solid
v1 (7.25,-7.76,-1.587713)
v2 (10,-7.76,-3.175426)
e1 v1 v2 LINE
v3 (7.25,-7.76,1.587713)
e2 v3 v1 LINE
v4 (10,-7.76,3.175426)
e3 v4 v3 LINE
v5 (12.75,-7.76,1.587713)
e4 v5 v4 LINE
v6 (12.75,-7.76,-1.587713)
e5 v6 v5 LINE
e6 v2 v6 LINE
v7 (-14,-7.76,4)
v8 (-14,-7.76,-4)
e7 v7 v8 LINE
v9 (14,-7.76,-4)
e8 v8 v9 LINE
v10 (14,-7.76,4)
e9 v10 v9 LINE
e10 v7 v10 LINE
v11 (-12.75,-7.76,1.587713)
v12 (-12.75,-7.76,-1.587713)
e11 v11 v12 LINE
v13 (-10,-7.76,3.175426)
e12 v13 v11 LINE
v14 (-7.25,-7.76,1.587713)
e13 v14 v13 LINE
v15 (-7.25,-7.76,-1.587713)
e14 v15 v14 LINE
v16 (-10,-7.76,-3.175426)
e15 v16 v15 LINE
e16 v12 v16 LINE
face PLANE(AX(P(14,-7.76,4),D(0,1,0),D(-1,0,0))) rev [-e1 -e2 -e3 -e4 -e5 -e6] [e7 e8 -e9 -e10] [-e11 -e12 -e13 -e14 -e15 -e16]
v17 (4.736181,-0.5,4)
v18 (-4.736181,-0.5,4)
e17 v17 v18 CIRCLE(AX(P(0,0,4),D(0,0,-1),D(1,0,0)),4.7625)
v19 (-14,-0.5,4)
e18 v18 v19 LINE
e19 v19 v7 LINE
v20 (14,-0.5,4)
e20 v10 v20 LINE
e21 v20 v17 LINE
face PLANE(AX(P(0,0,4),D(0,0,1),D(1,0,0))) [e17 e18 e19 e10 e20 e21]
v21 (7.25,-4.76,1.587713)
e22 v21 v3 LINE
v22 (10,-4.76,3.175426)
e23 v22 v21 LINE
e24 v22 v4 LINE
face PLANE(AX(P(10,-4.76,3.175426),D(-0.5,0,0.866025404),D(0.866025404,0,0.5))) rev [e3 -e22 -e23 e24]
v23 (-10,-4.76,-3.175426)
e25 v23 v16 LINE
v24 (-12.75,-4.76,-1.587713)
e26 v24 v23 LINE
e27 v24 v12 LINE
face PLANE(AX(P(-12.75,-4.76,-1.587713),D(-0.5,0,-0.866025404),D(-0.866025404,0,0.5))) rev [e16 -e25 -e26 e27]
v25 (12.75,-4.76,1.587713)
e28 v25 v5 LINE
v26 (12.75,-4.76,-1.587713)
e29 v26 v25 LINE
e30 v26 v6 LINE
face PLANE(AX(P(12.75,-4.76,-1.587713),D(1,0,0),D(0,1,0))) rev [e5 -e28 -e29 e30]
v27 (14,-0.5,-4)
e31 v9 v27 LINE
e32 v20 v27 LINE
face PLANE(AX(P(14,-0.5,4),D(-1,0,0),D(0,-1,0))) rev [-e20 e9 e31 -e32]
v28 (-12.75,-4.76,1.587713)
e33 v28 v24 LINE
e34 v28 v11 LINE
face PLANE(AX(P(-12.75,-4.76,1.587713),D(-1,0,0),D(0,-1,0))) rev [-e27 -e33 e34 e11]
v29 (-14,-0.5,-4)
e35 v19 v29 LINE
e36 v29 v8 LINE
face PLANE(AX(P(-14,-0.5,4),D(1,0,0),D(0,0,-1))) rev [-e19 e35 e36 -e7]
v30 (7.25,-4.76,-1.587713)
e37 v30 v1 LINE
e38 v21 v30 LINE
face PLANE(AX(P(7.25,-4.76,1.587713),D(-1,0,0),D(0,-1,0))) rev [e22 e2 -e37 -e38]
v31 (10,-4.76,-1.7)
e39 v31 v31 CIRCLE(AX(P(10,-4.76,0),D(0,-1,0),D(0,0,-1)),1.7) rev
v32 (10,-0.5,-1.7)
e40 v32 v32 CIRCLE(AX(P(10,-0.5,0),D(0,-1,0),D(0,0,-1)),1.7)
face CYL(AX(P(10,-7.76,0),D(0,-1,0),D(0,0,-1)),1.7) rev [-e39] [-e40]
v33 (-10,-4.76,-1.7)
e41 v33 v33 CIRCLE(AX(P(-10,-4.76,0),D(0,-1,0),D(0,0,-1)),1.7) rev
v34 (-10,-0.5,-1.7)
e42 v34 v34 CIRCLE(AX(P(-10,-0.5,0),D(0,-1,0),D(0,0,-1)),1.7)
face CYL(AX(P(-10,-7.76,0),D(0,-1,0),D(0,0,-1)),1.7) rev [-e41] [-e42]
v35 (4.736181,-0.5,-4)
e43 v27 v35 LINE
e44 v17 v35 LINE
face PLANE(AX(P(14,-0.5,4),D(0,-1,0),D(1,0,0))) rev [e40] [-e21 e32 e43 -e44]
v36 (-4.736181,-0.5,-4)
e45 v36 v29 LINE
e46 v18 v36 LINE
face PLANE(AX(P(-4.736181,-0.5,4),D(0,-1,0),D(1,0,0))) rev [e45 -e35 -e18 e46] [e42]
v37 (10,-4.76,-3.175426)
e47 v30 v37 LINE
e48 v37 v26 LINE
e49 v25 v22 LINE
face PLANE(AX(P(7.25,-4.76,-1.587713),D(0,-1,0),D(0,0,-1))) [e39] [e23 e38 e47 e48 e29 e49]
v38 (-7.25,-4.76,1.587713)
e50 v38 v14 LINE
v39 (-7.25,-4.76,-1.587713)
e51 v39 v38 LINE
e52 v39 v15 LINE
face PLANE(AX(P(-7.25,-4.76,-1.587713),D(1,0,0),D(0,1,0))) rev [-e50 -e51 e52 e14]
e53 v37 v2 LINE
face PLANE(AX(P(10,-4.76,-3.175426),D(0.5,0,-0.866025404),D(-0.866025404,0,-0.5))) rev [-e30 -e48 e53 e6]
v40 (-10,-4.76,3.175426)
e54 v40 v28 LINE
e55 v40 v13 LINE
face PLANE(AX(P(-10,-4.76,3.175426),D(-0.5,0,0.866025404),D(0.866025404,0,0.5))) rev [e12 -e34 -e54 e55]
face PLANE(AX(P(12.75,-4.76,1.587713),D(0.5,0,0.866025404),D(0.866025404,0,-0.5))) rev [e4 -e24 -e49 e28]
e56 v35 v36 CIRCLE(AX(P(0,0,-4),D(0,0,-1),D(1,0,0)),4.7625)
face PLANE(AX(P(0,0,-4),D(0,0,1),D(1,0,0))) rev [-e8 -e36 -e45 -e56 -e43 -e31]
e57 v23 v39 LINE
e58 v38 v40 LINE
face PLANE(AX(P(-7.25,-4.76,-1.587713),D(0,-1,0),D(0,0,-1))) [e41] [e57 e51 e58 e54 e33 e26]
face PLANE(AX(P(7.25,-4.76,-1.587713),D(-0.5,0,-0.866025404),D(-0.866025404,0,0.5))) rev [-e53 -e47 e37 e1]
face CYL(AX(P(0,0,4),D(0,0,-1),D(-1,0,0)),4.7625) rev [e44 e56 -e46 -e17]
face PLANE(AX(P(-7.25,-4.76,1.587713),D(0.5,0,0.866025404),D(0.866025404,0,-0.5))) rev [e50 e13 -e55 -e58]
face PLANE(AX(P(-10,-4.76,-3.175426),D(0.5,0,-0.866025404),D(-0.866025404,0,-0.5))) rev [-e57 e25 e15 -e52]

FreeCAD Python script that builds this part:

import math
import FreeCAD as App
import Part
import Sketcher

V = App.Vector
Q = App.Units.Quantity


def add_polygon(sketch, points):
    """Adds a closed chain of lines whose ends are joined by coincident constraints."""
    first, n = sketch.GeometryCount, len(points)
    for a, b in zip(points, points[1:] + points[:1]):
        sketch.addGeometry(Part.LineSegment(App.Vector(*a, 0), App.Vector(*b, 0)), False)
    for i in range(n):
        sketch.addConstraint(Sketcher.Constraint("Coincident", first + i, 2, first + (i + 1) % n, 1))

doc = App.newDocument("Part")
body = doc.addObject("PartDesign::Body", "Body")

# Sketch on XY plane
sketch1 = doc.addObject("Sketcher::SketchObject", "Sketch")
body.addObject(sketch1)
sketch1.AttachmentSupport = (doc.XY_Plane, [""])
sketch1.MapMode = "FlatFace"
sketch1.addGeometry(Part.LineSegment(V(14, -0.5, 0), V(4.7, -0.5, 0)), False)
sketch1.addGeometry(Part.ArcOfCircle(Part.Circle(V(0, 0, 0), V(0, 0, 1), 4.8), math.radians(-174), math.radians(-6)), False)
sketch1.addGeometry(Part.LineSegment(V(-4.7, -0.5, 0), V(-14, -0.5, 0)), False)
sketch1.addGeometry(Part.LineSegment(V(-14, -0.5, 0), V(-14, -7.8, 0)), False)
sketch1.addGeometry(Part.LineSegment(V(-14, -7.8, 0), V(14, -7.8, 0)), False)
sketch1.addGeometry(Part.LineSegment(V(14, -7.8, 0), V(14, -0.5, 0)), False)
sketch1.addConstraint(Sketcher.Constraint("Coincident", 0, 2, 1, 2))
sketch1.addConstraint(Sketcher.Constraint("Coincident", 1, 1, 2, 1))
sketch1.addConstraint(Sketcher.Constraint("Coincident", 2, 2, 3, 1))
sketch1.addConstraint(Sketcher.Constraint("Coincident", 3, 2, 4, 1))
sketch1.addConstraint(Sketcher.Constraint("Coincident", 4, 2, 5, 1))
sketch1.addConstraint(Sketcher.Constraint("Coincident", 5, 2, 0, 1))
sketch1.addConstraint(Sketcher.Constraint("Horizontal", 0))
sketch1.addConstraint(Sketcher.Constraint("Horizontal", 2))
sketch1.addConstraint(Sketcher.Constraint("Vertical", 3))
sketch1.addConstraint(Sketcher.Constraint("Horizontal", 4))
sketch1.addConstraint(Sketcher.Constraint("Vertical", 5))
sketch1.addConstraint(Sketcher.Constraint("Coincident", 1, 3, -1, 1))
sketch1.addConstraint(Sketcher.Constraint("Symmetric", 2, 2, 5, 2, -2))
sketch1.addConstraint(Sketcher.Constraint("DistanceX", 4, 1, 4, 2, Q("28 mm")))
sketch1.addConstraint(Sketcher.Constraint("DistanceY", 3, 2, 3, 1, Q("7.26 mm")))
sketch1.addConstraint(Sketcher.Constraint("DistanceY", 0, 2, -1, 1, Q("0.5 mm")))
sketch1.addConstraint(Sketcher.Constraint("Radius", 1, Q("4.7625 mm")))
pad1 = doc.addObject("PartDesign::Pad", "Pad")
body.addObject(pad1)
pad1.Profile = sketch1
pad1.Length = 8
pad1.Midplane = True

# Sketch on XZ plane
sketch2 = doc.addObject("Sketcher::SketchObject", "Sketch001")
body.addObject(sketch2)
sketch2.AttachmentSupport = (doc.XZ_Plane, [""])
sketch2.MapMode = "FlatFace"
sketch2.AttachmentOffset = App.Placement(V(0, 0, 7.76), App.Rotation())
sketch2.addGeometry(Part.Circle(V(-10, 0, 0), V(0, 0, 1), 1.7), False)
sketch2.addGeometry(Part.Circle(V(10, 0, 0), V(0, 0, 1), 1.7), False)
sketch2.addConstraint(Sketcher.Constraint("Equal", 0, 1))
sketch2.addConstraint(Sketcher.Constraint("Symmetric", 0, 3, 1, 3, -1, 1))
sketch2.addConstraint(Sketcher.Constraint("PointOnObject", 0, 3, -1))
sketch2.addConstraint(Sketcher.Constraint("Diameter", 0, Q("3.4 mm")))
sketch2.addConstraint(Sketcher.Constraint("DistanceX", 0, 3, -1, 1, Q("10 mm")))
doc.recompute()
hole = doc.addObject("PartDesign::Hole", "Hole")
body.addObject(hole)
hole.Profile = sketch2
hole.ThreadType = "None"
hole.Diameter = 3.4
hole.DepthType = "ThroughAll"

# Sketch on XZ plane
sketch3 = doc.addObject("Sketcher::SketchObject", "Sketch002")
body.addObject(sketch3)
sketch3.AttachmentSupport = (doc.XZ_Plane, [""])
sketch3.MapMode = "FlatFace"
sketch3.AttachmentOffset = App.Placement(V(0, 0, 7.76), App.Rotation())
add_polygon(sketch3, [(-7.2, -1.6), (-7.2, 1.6), (-10, 3.2), (-12.8, 1.6), (-12.8, -1.6), (-10, -3.2)])  # lines 0-5
add_polygon(sketch3, [(7.2, -1.6), (10, -3.2), (12.8, -1.6), (12.8, 1.6), (10, 3.2), (7.2, 1.6)])  # lines 6-11
sketch3.addConstraint(Sketcher.Constraint("Vertical", 0))
sketch3.addConstraint(Sketcher.Constraint("Vertical", 3))
sketch3.addConstraint(Sketcher.Constraint("Vertical", 8))
sketch3.addConstraint(Sketcher.Constraint("Vertical", 11))
sketch3.addConstraint(Sketcher.Constraint("Symmetric", 1, 2, 6, 2, -1, 1))
sketch3.addConstraint(Sketcher.Constraint("Symmetric", 2, 2, 7, 2, -1, 1))
sketch3.addConstraint(Sketcher.Constraint("Symmetric", 4, 2, 9, 2, -1, 1))
sketch3.addConstraint(Sketcher.Constraint("Symmetric", 5, 2, 10, 2, -1, 1))
sketch3.addConstraint(Sketcher.Constraint("Symmetric", 4, 2, 6, 2, -2))
sketch3.addConstraint(Sketcher.Constraint("Parallel", 1, 4))
sketch3.addConstraint(Sketcher.Constraint("Parallel", 2, 5))
sketch3.addConstraint(Sketcher.Constraint("Parallel", 4, 6))
sketch3.addConstraint(Sketcher.Constraint("Parallel", 6, 9))
sketch3.addConstraint(Sketcher.Constraint("Horizontal", 0, 2, 2, 2))
sketch3.addConstraint(Sketcher.Constraint("Horizontal", 3, 2, 5, 2))
sketch3.addConstraint(Sketcher.Constraint("Angle", 1, Q("150 deg")))
sketch3.addConstraint(Sketcher.Constraint("DistanceX", 1, 2, -1, 1, Q("10 mm")))
sketch3.addConstraint(Sketcher.Constraint("DistanceX", 2, 2, 0, 2, Q("5.5 mm")))
sketch3.addConstraint(Sketcher.Constraint("DistanceY", 0, 1, 0, 2, Q("3.175426 mm")))
pocket1 = doc.addObject("PartDesign::Pocket", "Pocket")
body.addObject(pocket1)
pocket1.Profile = sketch3
pocket1.Length = 3

doc.recompute()
